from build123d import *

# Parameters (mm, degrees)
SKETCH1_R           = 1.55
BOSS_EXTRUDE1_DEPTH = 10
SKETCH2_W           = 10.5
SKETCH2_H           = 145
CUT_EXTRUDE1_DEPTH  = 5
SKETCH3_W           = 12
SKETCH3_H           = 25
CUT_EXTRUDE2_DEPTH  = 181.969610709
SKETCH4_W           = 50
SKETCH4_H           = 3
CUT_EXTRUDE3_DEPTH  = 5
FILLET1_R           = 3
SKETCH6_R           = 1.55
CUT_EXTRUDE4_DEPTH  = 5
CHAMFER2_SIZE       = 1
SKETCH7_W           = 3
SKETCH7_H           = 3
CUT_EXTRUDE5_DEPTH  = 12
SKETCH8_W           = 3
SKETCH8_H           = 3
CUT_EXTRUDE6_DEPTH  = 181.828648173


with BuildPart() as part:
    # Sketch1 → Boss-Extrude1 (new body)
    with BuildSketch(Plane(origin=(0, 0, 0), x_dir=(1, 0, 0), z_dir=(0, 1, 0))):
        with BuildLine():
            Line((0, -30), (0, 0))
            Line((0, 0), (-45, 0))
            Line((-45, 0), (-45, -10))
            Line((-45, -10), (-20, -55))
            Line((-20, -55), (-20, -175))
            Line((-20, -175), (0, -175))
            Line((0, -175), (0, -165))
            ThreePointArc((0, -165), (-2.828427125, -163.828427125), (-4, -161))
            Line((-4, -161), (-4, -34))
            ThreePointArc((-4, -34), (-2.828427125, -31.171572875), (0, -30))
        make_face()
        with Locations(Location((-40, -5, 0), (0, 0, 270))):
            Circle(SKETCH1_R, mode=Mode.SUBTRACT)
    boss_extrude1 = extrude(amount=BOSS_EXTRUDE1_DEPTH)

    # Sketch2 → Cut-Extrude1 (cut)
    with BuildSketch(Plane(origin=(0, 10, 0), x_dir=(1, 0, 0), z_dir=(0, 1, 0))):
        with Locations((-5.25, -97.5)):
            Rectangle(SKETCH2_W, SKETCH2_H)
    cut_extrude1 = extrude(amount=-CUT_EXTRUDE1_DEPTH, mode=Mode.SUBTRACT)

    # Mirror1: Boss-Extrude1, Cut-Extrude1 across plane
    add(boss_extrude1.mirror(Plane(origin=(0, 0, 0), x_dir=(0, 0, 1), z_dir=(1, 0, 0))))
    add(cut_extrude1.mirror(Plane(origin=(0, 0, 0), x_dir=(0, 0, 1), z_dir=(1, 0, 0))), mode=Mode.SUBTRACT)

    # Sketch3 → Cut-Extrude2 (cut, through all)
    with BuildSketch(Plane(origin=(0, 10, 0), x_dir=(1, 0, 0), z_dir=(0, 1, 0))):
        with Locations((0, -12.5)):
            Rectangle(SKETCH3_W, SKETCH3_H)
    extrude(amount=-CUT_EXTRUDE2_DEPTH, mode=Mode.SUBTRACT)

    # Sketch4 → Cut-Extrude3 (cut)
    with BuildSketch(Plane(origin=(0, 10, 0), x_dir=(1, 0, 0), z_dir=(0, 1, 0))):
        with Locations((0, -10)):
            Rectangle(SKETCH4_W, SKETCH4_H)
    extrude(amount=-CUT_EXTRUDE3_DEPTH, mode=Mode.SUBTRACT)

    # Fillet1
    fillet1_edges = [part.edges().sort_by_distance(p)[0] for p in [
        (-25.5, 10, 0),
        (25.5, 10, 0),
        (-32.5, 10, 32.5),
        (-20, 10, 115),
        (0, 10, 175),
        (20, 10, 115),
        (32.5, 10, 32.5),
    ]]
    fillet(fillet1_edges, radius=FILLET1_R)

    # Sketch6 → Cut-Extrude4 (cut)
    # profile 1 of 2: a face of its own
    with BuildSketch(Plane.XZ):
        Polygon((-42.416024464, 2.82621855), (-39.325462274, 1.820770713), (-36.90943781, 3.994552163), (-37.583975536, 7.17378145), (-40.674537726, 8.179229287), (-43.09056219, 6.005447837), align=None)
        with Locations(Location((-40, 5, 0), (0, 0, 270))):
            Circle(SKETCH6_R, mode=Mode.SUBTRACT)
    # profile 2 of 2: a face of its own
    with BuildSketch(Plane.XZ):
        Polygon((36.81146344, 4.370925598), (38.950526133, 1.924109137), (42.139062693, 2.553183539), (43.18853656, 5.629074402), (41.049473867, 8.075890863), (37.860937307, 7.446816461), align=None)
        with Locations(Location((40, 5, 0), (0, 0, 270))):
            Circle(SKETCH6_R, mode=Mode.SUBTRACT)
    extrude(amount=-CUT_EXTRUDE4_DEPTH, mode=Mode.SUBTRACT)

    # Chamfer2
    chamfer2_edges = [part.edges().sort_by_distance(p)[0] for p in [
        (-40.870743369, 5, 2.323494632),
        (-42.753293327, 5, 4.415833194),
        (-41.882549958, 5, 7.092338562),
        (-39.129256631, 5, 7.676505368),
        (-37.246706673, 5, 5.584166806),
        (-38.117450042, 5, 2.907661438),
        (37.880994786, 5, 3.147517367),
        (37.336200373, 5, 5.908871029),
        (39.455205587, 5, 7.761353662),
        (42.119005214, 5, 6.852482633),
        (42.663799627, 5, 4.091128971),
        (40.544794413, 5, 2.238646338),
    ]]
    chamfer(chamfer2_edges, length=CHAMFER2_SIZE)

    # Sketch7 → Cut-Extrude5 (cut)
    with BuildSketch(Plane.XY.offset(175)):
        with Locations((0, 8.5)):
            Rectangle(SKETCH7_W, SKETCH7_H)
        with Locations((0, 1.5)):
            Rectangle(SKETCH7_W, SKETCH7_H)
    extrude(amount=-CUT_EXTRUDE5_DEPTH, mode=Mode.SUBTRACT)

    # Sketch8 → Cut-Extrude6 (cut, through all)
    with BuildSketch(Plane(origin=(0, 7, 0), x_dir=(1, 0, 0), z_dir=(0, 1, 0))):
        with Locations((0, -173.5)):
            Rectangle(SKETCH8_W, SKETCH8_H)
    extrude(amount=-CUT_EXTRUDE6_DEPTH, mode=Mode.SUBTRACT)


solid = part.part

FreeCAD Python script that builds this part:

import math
import FreeCAD as App
import Part
import Sketcher


def edges_at(feature, points):
    """Names of the edges that pass closest to the given points."""
    edges = feature.Shape.Edges
    near = lambda p: min(range(len(edges)), key=lambda i: edges[i].distToShape(Part.Vertex(*p))[0])
    return sorted({f"Edge{near(p) + 1}" for p in points})


def add_polygon(sketch, points):
    """Adds a closed chain of lines whose ends are joined by coincident constraints."""
    first, n = sketch.GeometryCount, len(points)
    for a, b in zip(points, points[1:] + points[:1]):
        sketch.addGeometry(Part.LineSegment(App.Vector(*a, 0), App.Vector(*b, 0)), False)
    for i in range(n):
        sketch.addConstraint(Sketcher.Constraint("Coincident", first + i, 2, first + (i + 1) % n, 1))

doc = App.newDocument("Part")
body = doc.addObject("PartDesign::Body", "Body")

sketch1 = doc.addObject("Sketcher::SketchObject", "Sketch")
body.addObject(sketch1)
sketch1.AttachmentSupport = (doc.XZ_Plane, [""])
sketch1.MapMode = "FlatFace"
sketch1.addGeometry([
    Part.LineSegment(App.Vector(0, 30, 0), App.Vector(0, 0, 0)),
    Part.LineSegment(App.Vector(0, 0, 0), App.Vector(-45, 0, 0)),
    Part.LineSegment(App.Vector(-45, 0, 0), App.Vector(-45, 10, 0)),
    Part.LineSegment(App.Vector(-45, 10, 0), App.Vector(-20, 55, 0)),
    Part.LineSegment(App.Vector(-20, 55, 0), App.Vector(-20, 175, 0)),
    Part.LineSegment(App.Vector(-20, 175, 0), App.Vector(0, 175, 0)),
    Part.LineSegment(App.Vector(0, 175, 0), App.Vector(0, 165, 0)),
    Part.ArcOfCircle(Part.Circle(App.Vector(0, 161, 0), App.Vector(0, 0, 1), 4), math.radians(90), math.radians(180)),
    Part.LineSegment(App.Vector(-4, 161, 0), App.Vector(-4, 34, 0)),
    Part.ArcOfCircle(Part.Circle(App.Vector(0, 34, 0), App.Vector(0, 0, 1), 4), math.radians(180), math.radians(270)),
    Part.Circle(App.Vector(-40, 5, 0), App.Vector(0, 0, 1), 1.6),
], False)
sketch1.addConstraint([
    Sketcher.Constraint("Coincident", 0, 2, 1, 1),
    Sketcher.Constraint("Coincident", 1, 2, 2, 1),
    Sketcher.Constraint("Coincident", 2, 2, 3, 1),
    Sketcher.Constraint("Coincident", 3, 2, 4, 1),
    Sketcher.Constraint("Coincident", 4, 2, 5, 1),
    Sketcher.Constraint("Coincident", 5, 2, 6, 1),
    Sketcher.Constraint("Coincident", 6, 2, 7, 1),
    Sketcher.Constraint("Tangent", 7, 2, 8, 1),
    Sketcher.Constraint("Tangent", 8, 2, 9, 1),
    Sketcher.Constraint("Coincident", 9, 2, 0, 1),
    Sketcher.Constraint("Vertical", 0),
    Sketcher.Constraint("Horizontal", 1),
    Sketcher.Constraint("Vertical", 2),
    Sketcher.Constraint("Vertical", 4),
    Sketcher.Constraint("Horizontal", 5),
    Sketcher.Constraint("Vertical", 6),
    Sketcher.Constraint("Vertical", 8),
    Sketcher.Constraint("Coincident", 0, 2, -1, 1),
    Sketcher.Constraint("Equal", 7, 9),
    Sketcher.Constraint("PointOnObject", 7, 3, -2),
    Sketcher.Constraint("PointOnObject", 5, 2, -2),
    Sketcher.Constraint("Equal", 2, 6),
    Sketcher.Constraint("Radius", 7, 4.0),
    Sketcher.Constraint("Diameter", 10, 3.1),
    Sketcher.Constraint("DistanceX", 1, 2, 1, 1, 45.0),
    Sketcher.Constraint("DistanceX", 5, 1, 5, 2, 20.0),
    Sketcher.Constraint("DistanceY", 0, 2, 0, 1, 30.0),
    Sketcher.Constraint("DistanceY", 2, 1, 2, 2, 10.0),
    Sketcher.Constraint("DistanceY", 4, 1, 4, 2, 120.0),
    Sketcher.Constraint("DistanceY", 8, 2, 8, 1, 127.0),
    Sketcher.Constraint("DistanceX", 10, 3, -1, 1, 40.0),
    Sketcher.Constraint("DistanceY", -1, 1, 10, 3, 5.0),
])
pad1 = doc.addObject("PartDesign::Pad", "Pad")
body.addObject(pad1)
pad1.Profile = sketch1
pad1.Length = 10
pad1.Reversed = True

sketch2 = doc.addObject("Sketcher::SketchObject", "Sketch001")
body.addObject(sketch2)
sketch2.AttachmentSupport = (doc.XZ_Plane, [""])
sketch2.MapMode = "FlatFace"
sketch2.AttachmentOffset = App.Placement(App.Vector(0, 0, -10), App.Rotation())
add_polygon(sketch2, [(-10, 25), (-10, 170), (0, 170), (0, 25)])
sketch2.addConstraint([
    Sketcher.Constraint("Vertical", 0),
    Sketcher.Constraint("Horizontal", 1),
    Sketcher.Constraint("Vertical", 2),
    Sketcher.Constraint("Horizontal", 3),
    Sketcher.Constraint("PointOnObject", 1, 2, -2),
    Sketcher.Constraint("DistanceY", 0, 1, 0, 2, 145.0),
    Sketcher.Constraint("DistanceX", 1, 1, 1, 2, 10.5),
    Sketcher.Constraint("DistanceY", -1, 1, 0, 2, 170.0),
])
pocket1 = doc.addObject("PartDesign::Pocket", "Pocket")
body.addObject(pocket1)
pocket1.Profile = sketch2
pocket1.Length = 5
pocket1.Reversed = True
doc.recompute()

mirrored = doc.addObject("PartDesign::Mirrored", "Mirrored")
body.addObject(mirrored)
mirrored.Originals = [pad1, pocket1]
mirrored.MirrorPlane = (doc.YZ_Plane, [""])
body.Tip = mirrored

sketch3 = doc.addObject("Sketcher::SketchObject", "Sketch002")
body.addObject(sketch3)
sketch3.AttachmentSupport = (doc.XZ_Plane, [""])
sketch3.MapMode = "FlatFace"
sketch3.AttachmentOffset = App.Placement(App.Vector(0, 0, -10), App.Rotation())
add_polygon(sketch3, [(-6, 0), (-6, 25), (6, 25), (6, 0)])
sketch3.addConstraint([
    Sketcher.Constraint("Vertical", 0),
    Sketcher.Constraint("Horizontal", 1),
    Sketcher.Constraint("Vertical", 2),
    Sketcher.Constraint("Horizontal", 3),
    Sketcher.Constraint("Symmetric", 2, 2, 3, 2, -1, 1),
    Sketcher.Constraint("DistanceX", 1, 1, 1, 2, 12.0),
    Sketcher.Constraint("DistanceY", 0, 1, 0, 2, 25.0),
])
pocket2 = doc.addObject("PartDesign::Pocket", "Pocket001")
body.addObject(pocket2)
pocket2.Profile = sketch3
pocket2.Type = "ThroughAll"
pocket2.Reversed = True

sketch4 = doc.addObject("Sketcher::SketchObject", "Sketch003")
body.addObject(sketch4)
sketch4.AttachmentSupport = (doc.XZ_Plane, [""])
sketch4.MapMode = "FlatFace"
sketch4.AttachmentOffset = App.Placement(App.Vector(0, 0, -10), App.Rotation())
add_polygon(sketch4, [(-25, 8.5), (-25, 11.5), (25, 11.5), (25, 8.5)])
sketch4.addConstraint([
    Sketcher.Constraint("Vertical", 0),
    Sketcher.Constraint("Horizontal", 1),
    Sketcher.Constraint("Vertical", 2),
    Sketcher.Constraint("Horizontal", 3),
    Sketcher.Constraint("DistanceX", 1, 1, 1, 2, 50.0),
    Sketcher.Constraint("DistanceY", 0, 1, 0, 2, 3.0),
    Sketcher.Constraint("DistanceX", 0, 2, -1, 1, 25.0),
    Sketcher.Constraint("DistanceY", -1, 1, 0, 2, 11.5),
])
pocket3 = doc.addObject("PartDesign::Pocket", "Pocket002")
body.addObject(pocket3)
pocket3.Profile = sketch4
pocket3.Length = 5
pocket3.Reversed = True
doc.recompute()

fillet = doc.addObject("PartDesign::Fillet", "Fillet")
body.addObject(fillet)
fillet.Base = (pocket3, edges_at(pocket3, [
    (-25.5, 10, 0),
    (25.5, 10, 0),
    (-32.5, 10, 32.5),
    (-20, 10, 115),
    (0, 10, 175),
    (20, 10, 115),
    (32.5, 10, 32.5),
]))
fillet.Radius = 3

sketch5 = doc.addObject("Sketcher::SketchObject", "Sketch004")
body.addObject(sketch5)
sketch5.AttachmentSupport = (doc.XZ_Plane, [""])
sketch5.MapMode = "FlatFace"
add_polygon(sketch5, [(-42.4, 2.8), (-39.3, 1.8), (-36.9, 4), (-37.6, 7.2), (-40.7, 8.2), (-43.1, 6)])
sketch5.addGeometry(Part.Circle(App.Vector(-40, 5, 0), App.Vector(0, 0, 1), 1.6), False)
add_polygon(sketch5, [(36.8, 4.4), (39, 1.9), (42.1, 2.6), (43.2, 5.6), (41, 8.1), (37.9, 7.4)])
sketch5.addGeometry(Part.Circle(App.Vector(40, 5, 0), App.Vector(0, 0, 1), 1.6), False)
sketch5.addConstraint([
    Sketcher.Constraint("Equal", 6, 13),
    Sketcher.Constraint("Symmetric", 6, 3, 13, 3, -2),
    Sketcher.Constraint("Parallel", 0, 3),
    Sketcher.Constraint("Parallel", 1, 4),
    Sketcher.Constraint("Parallel", 2, 5),
    Sketcher.Constraint("Parallel", 7, 10),
    Sketcher.Constraint("Parallel", 8, 11),
    Sketcher.Constraint("Parallel", 9, 12),
    Sketcher.Constraint("Equal", 0, 1),
    Sketcher.Constraint("Equal", 1, 2),
    Sketcher.Constraint("Equal", 2, 3),
    Sketcher.Constraint("Equal", 5, 7),
    Sketcher.Constraint("Equal", 7, 8),
    Sketcher.Constraint("Equal", 8, 9),
    Sketcher.Constraint("Equal", 9, 10),
    Sketcher.Constraint("Diameter", 6, 3.1),
    Sketcher.Constraint("DistanceX", 6, 3, -1, 1, 40.0),
    Sketcher.Constraint("DistanceY", -1, 1, 6, 3, 5.0),
    Sketcher.Constraint("Distance", 0, 3.25),
    Sketcher.Constraint("DistanceX", 3, 2, 1, 2, 3.7651),
    Sketcher.Constraint("DistanceX", 2, 2, 7, 2, 76.534502),
    Sketcher.Constraint("DistanceX", 1, 2, 8, 2, 79.048501),
    Sketcher.Constraint("DistanceX", 11, 2, 9, 2, 5.327599),
    Sketcher.Constraint("DistanceY", -1, 1, 0, 2, 1.820771),
    Sketcher.Constraint("DistanceY", -1, 1, 2, 2, 7.173781),
    Sketcher.Constraint("DistanceY", -1, 1, 3, 2, 8.179229),
    Sketcher.Constraint("DistanceY", -1, 1, 7, 2, 1.924109),
    Sketcher.Constraint("DistanceY", -1, 1, 10, 2, 8.075891),
    Sketcher.Constraint("DistanceX", 0, 2, -1, 1, 39.325462),
])
pocket4 = doc.addObject("PartDesign::Pocket", "Pocket003")
body.addObject(pocket4)
pocket4.Profile = sketch5
pocket4.Length = 5
doc.recompute()

chamfer = doc.addObject("PartDesign::Chamfer", "Chamfer")
body.addObject(chamfer)
chamfer.Base = (pocket4, edges_at(pocket4, [
    (-40.871, 5, 2.323),
    (-42.753, 5, 4.416),
    (-41.883, 5, 7.092),
    (-39.129, 5, 7.677),
    (-37.247, 5, 5.584),
    (-38.117, 5, 2.908),
    (37.881, 5, 3.148),
    (37.336, 5, 5.909),
    (39.455, 5, 7.761),
    (42.119, 5, 6.852),
    (42.664, 5, 4.091),
    (40.545, 5, 2.239),
]))
chamfer.Size = 1

sketch6 = doc.addObject("Sketcher::SketchObject", "Sketch005")
body.addObject(sketch6)
sketch6.AttachmentSupport = (doc.XY_Plane, [""])
sketch6.MapMode = "FlatFace"
sketch6.AttachmentOffset = App.Placement(App.Vector(0, 0, 175), App.Rotation())
add_polygon(sketch6, [(-1.5, 10), (-1.5, 7), (1.5, 7), (1.5, 10)])
add_polygon(sketch6, [(-1.5, 3), (-1.5, 0), (1.5, 0), (1.5, 3)])
sketch6.addConstraint([
    Sketcher.Constraint("Vertical", 0),
    Sketcher.Constraint("Horizontal", 1),
    Sketcher.Constraint("Vertical", 2),
    Sketcher.Constraint("Horizontal", 3),
    Sketcher.Constraint("Vertical", 4),
    Sketcher.Constraint("Horizontal", 5),
    Sketcher.Constraint("Vertical", 6),
    Sketcher.Constraint("Horizontal", 7),
    Sketcher.Constraint("Symmetric", 4, 2, 5, 2, -1, 1),
    Sketcher.Constraint("Vertical", 3, 2, 4, 2),
    Sketcher.Constraint("Vertical", 2, 2, 5, 2),
    Sketcher.Constraint("Equal", 7, 0),
    Sketcher.Constraint("Equal", 2, 4),
    Sketcher.Constraint("DistanceX", 1, 1, 1, 2, 3.0),
    Sketcher.Constraint("DistanceY", -1, 1, 0, 2, 7.0),
])
pocket5 = doc.addObject("PartDesign::Pocket", "Pocket004")
body.addObject(pocket5)
pocket5.Profile = sketch6
pocket5.Length = 12

sketch7 = doc.addObject("Sketcher::SketchObject", "Sketch006")
body.addObject(sketch7)
sketch7.AttachmentSupport = (doc.XZ_Plane, [""])
sketch7.MapMode = "FlatFace"
sketch7.AttachmentOffset = App.Placement(App.Vector(0, 0, -7), App.Rotation())
add_polygon(sketch7, [(-1.5, 172), (-1.5, 175), (1.5, 175), (1.5, 172)])
sketch7.addConstraint([
    Sketcher.Constraint("Vertical", 0),
    Sketcher.Constraint("Horizontal", 1),
    Sketcher.Constraint("Vertical", 2),
    Sketcher.Constraint("Horizontal", 3),
    Sketcher.Constraint("Equal", 3, 0),
    Sketcher.Constraint("DistanceX", 1, 1, 1, 2, 3.0),
    Sketcher.Constraint("DistanceY", -1, 1, 0, 2, 175.0),
    Sketcher.Constraint("DistanceX", 0, 2, -1, 1, 1.5),
])
pocket6 = doc.addObject("PartDesign::Pocket", "Pocket005")
body.addObject(pocket6)
pocket6.Profile = sketch7
pocket6.Type = "ThroughAll"
pocket6.Reversed = True

doc.recompute()
